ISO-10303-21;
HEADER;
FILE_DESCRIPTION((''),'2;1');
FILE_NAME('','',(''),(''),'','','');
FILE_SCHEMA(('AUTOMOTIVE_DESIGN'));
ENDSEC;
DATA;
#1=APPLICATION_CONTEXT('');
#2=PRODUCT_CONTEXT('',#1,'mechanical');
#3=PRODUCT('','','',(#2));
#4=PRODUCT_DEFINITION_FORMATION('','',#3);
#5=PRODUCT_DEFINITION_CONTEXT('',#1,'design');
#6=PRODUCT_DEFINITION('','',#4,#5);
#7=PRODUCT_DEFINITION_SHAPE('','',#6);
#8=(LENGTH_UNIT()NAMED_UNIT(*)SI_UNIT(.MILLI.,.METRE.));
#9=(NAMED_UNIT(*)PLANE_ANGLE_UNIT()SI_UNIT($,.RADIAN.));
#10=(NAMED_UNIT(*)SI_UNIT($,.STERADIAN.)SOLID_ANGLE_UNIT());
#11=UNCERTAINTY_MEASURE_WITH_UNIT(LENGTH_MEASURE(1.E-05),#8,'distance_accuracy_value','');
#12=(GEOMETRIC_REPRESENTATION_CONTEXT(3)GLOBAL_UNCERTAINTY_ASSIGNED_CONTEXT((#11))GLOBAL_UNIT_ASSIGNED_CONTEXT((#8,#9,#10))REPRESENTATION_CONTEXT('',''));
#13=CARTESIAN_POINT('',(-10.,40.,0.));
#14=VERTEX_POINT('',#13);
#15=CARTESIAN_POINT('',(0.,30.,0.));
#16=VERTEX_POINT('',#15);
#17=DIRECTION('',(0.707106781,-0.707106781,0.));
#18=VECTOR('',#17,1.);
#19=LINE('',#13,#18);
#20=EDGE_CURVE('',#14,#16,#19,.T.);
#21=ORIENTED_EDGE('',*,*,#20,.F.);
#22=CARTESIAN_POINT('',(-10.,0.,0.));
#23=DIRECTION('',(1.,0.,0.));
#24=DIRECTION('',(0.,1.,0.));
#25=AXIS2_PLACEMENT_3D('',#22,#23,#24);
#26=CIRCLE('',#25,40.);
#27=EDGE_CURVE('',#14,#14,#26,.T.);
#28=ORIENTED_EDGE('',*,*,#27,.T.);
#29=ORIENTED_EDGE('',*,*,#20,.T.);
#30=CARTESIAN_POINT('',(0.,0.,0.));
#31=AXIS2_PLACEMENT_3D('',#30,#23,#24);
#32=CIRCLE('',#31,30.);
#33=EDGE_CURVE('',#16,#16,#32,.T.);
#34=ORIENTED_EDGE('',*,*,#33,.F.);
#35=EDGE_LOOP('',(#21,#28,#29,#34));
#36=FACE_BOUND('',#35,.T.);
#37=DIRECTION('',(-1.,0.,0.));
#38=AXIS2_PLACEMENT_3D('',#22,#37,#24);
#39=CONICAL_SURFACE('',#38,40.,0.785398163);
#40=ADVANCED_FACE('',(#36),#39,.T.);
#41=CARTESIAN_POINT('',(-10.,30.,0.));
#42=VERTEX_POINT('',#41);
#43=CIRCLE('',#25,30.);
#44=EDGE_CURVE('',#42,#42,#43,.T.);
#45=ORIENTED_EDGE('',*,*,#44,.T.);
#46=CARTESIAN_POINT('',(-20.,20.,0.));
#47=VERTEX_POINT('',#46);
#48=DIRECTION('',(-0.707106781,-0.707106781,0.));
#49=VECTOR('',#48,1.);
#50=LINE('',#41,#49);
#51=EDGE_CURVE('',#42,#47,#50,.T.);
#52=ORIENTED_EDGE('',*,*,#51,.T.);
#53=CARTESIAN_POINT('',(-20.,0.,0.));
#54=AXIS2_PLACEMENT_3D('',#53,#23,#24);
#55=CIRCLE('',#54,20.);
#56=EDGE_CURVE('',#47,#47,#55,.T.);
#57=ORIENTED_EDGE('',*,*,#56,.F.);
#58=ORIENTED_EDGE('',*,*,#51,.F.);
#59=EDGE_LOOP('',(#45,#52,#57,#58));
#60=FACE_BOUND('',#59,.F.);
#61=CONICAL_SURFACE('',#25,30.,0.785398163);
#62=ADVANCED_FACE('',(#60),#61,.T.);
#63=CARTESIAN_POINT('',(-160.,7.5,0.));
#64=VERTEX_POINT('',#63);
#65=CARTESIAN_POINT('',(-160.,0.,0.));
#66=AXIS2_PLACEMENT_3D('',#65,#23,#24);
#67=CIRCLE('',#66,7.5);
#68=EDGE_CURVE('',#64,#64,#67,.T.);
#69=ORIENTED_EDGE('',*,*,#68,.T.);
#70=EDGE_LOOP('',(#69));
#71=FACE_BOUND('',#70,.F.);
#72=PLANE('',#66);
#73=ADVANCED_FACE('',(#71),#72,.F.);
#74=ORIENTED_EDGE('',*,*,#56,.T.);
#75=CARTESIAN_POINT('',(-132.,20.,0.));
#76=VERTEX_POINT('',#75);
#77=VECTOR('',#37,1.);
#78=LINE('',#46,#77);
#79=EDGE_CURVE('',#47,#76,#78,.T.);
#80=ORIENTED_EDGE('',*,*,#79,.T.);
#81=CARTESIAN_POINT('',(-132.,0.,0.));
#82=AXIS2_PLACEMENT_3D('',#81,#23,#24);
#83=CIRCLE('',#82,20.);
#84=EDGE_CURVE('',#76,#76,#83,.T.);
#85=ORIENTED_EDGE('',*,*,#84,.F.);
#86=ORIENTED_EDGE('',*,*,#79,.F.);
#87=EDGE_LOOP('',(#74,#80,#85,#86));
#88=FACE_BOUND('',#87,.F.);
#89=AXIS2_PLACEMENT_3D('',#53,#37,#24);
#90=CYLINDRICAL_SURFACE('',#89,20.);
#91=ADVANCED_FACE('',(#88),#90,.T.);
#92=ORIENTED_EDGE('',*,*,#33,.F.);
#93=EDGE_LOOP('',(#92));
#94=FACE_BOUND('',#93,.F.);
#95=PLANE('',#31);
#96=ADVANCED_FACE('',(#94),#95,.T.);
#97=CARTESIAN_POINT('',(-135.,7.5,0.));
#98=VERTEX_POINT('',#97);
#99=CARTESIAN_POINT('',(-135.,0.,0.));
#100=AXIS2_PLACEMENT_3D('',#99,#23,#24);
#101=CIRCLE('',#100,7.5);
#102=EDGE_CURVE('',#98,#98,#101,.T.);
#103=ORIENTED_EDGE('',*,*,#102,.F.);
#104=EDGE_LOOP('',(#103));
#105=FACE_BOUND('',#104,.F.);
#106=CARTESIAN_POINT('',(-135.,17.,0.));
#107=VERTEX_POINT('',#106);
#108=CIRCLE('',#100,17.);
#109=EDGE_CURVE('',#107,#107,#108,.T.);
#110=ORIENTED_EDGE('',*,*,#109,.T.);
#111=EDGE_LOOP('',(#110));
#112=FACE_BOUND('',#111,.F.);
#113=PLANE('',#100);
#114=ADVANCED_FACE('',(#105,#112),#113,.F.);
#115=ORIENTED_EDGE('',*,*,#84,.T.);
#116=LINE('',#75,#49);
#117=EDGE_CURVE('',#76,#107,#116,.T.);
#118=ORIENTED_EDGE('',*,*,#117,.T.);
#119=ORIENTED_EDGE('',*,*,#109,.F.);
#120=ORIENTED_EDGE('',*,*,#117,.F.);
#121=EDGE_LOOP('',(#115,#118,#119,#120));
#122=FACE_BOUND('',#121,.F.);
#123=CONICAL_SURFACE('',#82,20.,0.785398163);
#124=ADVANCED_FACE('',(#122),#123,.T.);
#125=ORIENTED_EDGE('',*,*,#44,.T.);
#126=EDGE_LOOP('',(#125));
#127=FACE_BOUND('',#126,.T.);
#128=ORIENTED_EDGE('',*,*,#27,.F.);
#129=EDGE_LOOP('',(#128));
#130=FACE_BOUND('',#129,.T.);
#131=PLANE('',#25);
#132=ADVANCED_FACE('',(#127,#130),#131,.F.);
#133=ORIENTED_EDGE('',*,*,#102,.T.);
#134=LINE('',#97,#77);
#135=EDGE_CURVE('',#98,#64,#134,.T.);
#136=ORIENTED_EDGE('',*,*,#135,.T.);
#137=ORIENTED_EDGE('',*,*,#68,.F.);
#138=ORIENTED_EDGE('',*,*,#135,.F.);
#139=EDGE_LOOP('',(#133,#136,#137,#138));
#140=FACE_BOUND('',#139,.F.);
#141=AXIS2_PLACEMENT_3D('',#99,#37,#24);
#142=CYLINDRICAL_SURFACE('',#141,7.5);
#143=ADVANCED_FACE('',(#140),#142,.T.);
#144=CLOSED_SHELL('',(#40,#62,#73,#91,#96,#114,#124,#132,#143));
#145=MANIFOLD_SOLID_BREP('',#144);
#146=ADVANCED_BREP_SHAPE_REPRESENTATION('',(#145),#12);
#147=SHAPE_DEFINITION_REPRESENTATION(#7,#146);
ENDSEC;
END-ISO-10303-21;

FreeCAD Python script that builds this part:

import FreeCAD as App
import Part
import Sketcher

V = App.Vector
Q = App.Units.Quantity


def add_polygon(sketch, points):
    """Adds a closed chain of lines whose ends are joined by coincident constraints."""
    first, n = sketch.GeometryCount, len(points)
    for a, b in zip(points, points[1:] + points[:1]):
        sketch.addGeometry(Part.LineSegment(App.Vector(*a, 0), App.Vector(*b, 0)), False)
    for i in range(n):
        sketch.addConstraint(Sketcher.Constraint("Coincident", first + i, 2, first + (i + 1) % n, 1))

doc = App.newDocument("Part")
params = doc.addObject("Spreadsheet::Sheet", "Params")
for row, (alias, value) in enumerate([
    ("sketch1_width", "160 mm"),
    ("sketch1_width2", "25 mm"),
    ("sketch1_height", "10 mm"),
    ("sketch1_height2", "7.5 mm"),
    ("revolution_angle", "360 deg"),
], start=1):
    params.set(f"A{row}", alias)
    params.set(f"B{row}", "=" + value)
    params.setAlias(f"B{row}", alias)

body = doc.addObject("PartDesign::Body", "Body")

sketch1 = body.newObject("Sketcher::SketchObject", "Sketch")
sketch1.AttachmentSupport = (doc.getObject("XY_Plane"), [""])
sketch1.MapMode = "FlatFace"
add_polygon(sketch1, [(-160, 0), (0, 0), (0, 30), (-10, 40), (-10, 30), (-20, 20), (-132, 20), (-135, 17), (-135, 7.5), (-160, 7.5)])
sketch1.addConstraint([
    Sketcher.Constraint("Horizontal", 0),
    Sketcher.Constraint("Vertical", 1),
    Sketcher.Constraint("Vertical", 3),
    Sketcher.Constraint("Horizontal", 5),
    Sketcher.Constraint("Vertical", 7),
    Sketcher.Constraint("Horizontal", 8),
    Sketcher.Constraint("Vertical", 9),
    Sketcher.Constraint("Coincident", 0, 2, -1, 1),
    Sketcher.Constraint("Perpendicular", 2, 4),
    Sketcher.Constraint("Parallel", 4, 6),
    Sketcher.Constraint("Horizontal", 1, 2, 3, 2),
    Sketcher.Constraint("Equal", 2, 4),
    Sketcher.Constraint("DistanceX", 0, 1, 0, 2, Q("160 mm")),
    Sketcher.Constraint("DistanceX", 8, 2, 8, 1, Q("25 mm")),
    Sketcher.Constraint("DistanceY", 3, 2, 3, 1, Q("10 mm")),
    Sketcher.Constraint("DistanceY", 9, 2, 9, 1, Q("7.5 mm")),
    Sketcher.Constraint("DistanceX", 2, 2, -1, 1, Q("10 mm")),
    Sketcher.Constraint("DistanceY", -1, 1, 2, 2, Q("40 mm")),
    Sketcher.Constraint("DistanceX", 6, 2, 5, 2, Q("3 mm")),
])
sketch1.setExpression("Constraints[22]", "Params.sketch1_width")
sketch1.setExpression("Constraints[23]", "Params.sketch1_width2")
sketch1.setExpression("Constraints[24]", "Params.sketch1_height")
sketch1.setExpression("Constraints[25]", "Params.sketch1_height2")
revolution = body.newObject("PartDesign::Revolution", "Revolution")
revolution.Profile = sketch1
revolution.ReferenceAxis = (sketch1, ["H_Axis"])
revolution.setExpression("Angle", "Params.revolution_angle")

doc.recompute()
